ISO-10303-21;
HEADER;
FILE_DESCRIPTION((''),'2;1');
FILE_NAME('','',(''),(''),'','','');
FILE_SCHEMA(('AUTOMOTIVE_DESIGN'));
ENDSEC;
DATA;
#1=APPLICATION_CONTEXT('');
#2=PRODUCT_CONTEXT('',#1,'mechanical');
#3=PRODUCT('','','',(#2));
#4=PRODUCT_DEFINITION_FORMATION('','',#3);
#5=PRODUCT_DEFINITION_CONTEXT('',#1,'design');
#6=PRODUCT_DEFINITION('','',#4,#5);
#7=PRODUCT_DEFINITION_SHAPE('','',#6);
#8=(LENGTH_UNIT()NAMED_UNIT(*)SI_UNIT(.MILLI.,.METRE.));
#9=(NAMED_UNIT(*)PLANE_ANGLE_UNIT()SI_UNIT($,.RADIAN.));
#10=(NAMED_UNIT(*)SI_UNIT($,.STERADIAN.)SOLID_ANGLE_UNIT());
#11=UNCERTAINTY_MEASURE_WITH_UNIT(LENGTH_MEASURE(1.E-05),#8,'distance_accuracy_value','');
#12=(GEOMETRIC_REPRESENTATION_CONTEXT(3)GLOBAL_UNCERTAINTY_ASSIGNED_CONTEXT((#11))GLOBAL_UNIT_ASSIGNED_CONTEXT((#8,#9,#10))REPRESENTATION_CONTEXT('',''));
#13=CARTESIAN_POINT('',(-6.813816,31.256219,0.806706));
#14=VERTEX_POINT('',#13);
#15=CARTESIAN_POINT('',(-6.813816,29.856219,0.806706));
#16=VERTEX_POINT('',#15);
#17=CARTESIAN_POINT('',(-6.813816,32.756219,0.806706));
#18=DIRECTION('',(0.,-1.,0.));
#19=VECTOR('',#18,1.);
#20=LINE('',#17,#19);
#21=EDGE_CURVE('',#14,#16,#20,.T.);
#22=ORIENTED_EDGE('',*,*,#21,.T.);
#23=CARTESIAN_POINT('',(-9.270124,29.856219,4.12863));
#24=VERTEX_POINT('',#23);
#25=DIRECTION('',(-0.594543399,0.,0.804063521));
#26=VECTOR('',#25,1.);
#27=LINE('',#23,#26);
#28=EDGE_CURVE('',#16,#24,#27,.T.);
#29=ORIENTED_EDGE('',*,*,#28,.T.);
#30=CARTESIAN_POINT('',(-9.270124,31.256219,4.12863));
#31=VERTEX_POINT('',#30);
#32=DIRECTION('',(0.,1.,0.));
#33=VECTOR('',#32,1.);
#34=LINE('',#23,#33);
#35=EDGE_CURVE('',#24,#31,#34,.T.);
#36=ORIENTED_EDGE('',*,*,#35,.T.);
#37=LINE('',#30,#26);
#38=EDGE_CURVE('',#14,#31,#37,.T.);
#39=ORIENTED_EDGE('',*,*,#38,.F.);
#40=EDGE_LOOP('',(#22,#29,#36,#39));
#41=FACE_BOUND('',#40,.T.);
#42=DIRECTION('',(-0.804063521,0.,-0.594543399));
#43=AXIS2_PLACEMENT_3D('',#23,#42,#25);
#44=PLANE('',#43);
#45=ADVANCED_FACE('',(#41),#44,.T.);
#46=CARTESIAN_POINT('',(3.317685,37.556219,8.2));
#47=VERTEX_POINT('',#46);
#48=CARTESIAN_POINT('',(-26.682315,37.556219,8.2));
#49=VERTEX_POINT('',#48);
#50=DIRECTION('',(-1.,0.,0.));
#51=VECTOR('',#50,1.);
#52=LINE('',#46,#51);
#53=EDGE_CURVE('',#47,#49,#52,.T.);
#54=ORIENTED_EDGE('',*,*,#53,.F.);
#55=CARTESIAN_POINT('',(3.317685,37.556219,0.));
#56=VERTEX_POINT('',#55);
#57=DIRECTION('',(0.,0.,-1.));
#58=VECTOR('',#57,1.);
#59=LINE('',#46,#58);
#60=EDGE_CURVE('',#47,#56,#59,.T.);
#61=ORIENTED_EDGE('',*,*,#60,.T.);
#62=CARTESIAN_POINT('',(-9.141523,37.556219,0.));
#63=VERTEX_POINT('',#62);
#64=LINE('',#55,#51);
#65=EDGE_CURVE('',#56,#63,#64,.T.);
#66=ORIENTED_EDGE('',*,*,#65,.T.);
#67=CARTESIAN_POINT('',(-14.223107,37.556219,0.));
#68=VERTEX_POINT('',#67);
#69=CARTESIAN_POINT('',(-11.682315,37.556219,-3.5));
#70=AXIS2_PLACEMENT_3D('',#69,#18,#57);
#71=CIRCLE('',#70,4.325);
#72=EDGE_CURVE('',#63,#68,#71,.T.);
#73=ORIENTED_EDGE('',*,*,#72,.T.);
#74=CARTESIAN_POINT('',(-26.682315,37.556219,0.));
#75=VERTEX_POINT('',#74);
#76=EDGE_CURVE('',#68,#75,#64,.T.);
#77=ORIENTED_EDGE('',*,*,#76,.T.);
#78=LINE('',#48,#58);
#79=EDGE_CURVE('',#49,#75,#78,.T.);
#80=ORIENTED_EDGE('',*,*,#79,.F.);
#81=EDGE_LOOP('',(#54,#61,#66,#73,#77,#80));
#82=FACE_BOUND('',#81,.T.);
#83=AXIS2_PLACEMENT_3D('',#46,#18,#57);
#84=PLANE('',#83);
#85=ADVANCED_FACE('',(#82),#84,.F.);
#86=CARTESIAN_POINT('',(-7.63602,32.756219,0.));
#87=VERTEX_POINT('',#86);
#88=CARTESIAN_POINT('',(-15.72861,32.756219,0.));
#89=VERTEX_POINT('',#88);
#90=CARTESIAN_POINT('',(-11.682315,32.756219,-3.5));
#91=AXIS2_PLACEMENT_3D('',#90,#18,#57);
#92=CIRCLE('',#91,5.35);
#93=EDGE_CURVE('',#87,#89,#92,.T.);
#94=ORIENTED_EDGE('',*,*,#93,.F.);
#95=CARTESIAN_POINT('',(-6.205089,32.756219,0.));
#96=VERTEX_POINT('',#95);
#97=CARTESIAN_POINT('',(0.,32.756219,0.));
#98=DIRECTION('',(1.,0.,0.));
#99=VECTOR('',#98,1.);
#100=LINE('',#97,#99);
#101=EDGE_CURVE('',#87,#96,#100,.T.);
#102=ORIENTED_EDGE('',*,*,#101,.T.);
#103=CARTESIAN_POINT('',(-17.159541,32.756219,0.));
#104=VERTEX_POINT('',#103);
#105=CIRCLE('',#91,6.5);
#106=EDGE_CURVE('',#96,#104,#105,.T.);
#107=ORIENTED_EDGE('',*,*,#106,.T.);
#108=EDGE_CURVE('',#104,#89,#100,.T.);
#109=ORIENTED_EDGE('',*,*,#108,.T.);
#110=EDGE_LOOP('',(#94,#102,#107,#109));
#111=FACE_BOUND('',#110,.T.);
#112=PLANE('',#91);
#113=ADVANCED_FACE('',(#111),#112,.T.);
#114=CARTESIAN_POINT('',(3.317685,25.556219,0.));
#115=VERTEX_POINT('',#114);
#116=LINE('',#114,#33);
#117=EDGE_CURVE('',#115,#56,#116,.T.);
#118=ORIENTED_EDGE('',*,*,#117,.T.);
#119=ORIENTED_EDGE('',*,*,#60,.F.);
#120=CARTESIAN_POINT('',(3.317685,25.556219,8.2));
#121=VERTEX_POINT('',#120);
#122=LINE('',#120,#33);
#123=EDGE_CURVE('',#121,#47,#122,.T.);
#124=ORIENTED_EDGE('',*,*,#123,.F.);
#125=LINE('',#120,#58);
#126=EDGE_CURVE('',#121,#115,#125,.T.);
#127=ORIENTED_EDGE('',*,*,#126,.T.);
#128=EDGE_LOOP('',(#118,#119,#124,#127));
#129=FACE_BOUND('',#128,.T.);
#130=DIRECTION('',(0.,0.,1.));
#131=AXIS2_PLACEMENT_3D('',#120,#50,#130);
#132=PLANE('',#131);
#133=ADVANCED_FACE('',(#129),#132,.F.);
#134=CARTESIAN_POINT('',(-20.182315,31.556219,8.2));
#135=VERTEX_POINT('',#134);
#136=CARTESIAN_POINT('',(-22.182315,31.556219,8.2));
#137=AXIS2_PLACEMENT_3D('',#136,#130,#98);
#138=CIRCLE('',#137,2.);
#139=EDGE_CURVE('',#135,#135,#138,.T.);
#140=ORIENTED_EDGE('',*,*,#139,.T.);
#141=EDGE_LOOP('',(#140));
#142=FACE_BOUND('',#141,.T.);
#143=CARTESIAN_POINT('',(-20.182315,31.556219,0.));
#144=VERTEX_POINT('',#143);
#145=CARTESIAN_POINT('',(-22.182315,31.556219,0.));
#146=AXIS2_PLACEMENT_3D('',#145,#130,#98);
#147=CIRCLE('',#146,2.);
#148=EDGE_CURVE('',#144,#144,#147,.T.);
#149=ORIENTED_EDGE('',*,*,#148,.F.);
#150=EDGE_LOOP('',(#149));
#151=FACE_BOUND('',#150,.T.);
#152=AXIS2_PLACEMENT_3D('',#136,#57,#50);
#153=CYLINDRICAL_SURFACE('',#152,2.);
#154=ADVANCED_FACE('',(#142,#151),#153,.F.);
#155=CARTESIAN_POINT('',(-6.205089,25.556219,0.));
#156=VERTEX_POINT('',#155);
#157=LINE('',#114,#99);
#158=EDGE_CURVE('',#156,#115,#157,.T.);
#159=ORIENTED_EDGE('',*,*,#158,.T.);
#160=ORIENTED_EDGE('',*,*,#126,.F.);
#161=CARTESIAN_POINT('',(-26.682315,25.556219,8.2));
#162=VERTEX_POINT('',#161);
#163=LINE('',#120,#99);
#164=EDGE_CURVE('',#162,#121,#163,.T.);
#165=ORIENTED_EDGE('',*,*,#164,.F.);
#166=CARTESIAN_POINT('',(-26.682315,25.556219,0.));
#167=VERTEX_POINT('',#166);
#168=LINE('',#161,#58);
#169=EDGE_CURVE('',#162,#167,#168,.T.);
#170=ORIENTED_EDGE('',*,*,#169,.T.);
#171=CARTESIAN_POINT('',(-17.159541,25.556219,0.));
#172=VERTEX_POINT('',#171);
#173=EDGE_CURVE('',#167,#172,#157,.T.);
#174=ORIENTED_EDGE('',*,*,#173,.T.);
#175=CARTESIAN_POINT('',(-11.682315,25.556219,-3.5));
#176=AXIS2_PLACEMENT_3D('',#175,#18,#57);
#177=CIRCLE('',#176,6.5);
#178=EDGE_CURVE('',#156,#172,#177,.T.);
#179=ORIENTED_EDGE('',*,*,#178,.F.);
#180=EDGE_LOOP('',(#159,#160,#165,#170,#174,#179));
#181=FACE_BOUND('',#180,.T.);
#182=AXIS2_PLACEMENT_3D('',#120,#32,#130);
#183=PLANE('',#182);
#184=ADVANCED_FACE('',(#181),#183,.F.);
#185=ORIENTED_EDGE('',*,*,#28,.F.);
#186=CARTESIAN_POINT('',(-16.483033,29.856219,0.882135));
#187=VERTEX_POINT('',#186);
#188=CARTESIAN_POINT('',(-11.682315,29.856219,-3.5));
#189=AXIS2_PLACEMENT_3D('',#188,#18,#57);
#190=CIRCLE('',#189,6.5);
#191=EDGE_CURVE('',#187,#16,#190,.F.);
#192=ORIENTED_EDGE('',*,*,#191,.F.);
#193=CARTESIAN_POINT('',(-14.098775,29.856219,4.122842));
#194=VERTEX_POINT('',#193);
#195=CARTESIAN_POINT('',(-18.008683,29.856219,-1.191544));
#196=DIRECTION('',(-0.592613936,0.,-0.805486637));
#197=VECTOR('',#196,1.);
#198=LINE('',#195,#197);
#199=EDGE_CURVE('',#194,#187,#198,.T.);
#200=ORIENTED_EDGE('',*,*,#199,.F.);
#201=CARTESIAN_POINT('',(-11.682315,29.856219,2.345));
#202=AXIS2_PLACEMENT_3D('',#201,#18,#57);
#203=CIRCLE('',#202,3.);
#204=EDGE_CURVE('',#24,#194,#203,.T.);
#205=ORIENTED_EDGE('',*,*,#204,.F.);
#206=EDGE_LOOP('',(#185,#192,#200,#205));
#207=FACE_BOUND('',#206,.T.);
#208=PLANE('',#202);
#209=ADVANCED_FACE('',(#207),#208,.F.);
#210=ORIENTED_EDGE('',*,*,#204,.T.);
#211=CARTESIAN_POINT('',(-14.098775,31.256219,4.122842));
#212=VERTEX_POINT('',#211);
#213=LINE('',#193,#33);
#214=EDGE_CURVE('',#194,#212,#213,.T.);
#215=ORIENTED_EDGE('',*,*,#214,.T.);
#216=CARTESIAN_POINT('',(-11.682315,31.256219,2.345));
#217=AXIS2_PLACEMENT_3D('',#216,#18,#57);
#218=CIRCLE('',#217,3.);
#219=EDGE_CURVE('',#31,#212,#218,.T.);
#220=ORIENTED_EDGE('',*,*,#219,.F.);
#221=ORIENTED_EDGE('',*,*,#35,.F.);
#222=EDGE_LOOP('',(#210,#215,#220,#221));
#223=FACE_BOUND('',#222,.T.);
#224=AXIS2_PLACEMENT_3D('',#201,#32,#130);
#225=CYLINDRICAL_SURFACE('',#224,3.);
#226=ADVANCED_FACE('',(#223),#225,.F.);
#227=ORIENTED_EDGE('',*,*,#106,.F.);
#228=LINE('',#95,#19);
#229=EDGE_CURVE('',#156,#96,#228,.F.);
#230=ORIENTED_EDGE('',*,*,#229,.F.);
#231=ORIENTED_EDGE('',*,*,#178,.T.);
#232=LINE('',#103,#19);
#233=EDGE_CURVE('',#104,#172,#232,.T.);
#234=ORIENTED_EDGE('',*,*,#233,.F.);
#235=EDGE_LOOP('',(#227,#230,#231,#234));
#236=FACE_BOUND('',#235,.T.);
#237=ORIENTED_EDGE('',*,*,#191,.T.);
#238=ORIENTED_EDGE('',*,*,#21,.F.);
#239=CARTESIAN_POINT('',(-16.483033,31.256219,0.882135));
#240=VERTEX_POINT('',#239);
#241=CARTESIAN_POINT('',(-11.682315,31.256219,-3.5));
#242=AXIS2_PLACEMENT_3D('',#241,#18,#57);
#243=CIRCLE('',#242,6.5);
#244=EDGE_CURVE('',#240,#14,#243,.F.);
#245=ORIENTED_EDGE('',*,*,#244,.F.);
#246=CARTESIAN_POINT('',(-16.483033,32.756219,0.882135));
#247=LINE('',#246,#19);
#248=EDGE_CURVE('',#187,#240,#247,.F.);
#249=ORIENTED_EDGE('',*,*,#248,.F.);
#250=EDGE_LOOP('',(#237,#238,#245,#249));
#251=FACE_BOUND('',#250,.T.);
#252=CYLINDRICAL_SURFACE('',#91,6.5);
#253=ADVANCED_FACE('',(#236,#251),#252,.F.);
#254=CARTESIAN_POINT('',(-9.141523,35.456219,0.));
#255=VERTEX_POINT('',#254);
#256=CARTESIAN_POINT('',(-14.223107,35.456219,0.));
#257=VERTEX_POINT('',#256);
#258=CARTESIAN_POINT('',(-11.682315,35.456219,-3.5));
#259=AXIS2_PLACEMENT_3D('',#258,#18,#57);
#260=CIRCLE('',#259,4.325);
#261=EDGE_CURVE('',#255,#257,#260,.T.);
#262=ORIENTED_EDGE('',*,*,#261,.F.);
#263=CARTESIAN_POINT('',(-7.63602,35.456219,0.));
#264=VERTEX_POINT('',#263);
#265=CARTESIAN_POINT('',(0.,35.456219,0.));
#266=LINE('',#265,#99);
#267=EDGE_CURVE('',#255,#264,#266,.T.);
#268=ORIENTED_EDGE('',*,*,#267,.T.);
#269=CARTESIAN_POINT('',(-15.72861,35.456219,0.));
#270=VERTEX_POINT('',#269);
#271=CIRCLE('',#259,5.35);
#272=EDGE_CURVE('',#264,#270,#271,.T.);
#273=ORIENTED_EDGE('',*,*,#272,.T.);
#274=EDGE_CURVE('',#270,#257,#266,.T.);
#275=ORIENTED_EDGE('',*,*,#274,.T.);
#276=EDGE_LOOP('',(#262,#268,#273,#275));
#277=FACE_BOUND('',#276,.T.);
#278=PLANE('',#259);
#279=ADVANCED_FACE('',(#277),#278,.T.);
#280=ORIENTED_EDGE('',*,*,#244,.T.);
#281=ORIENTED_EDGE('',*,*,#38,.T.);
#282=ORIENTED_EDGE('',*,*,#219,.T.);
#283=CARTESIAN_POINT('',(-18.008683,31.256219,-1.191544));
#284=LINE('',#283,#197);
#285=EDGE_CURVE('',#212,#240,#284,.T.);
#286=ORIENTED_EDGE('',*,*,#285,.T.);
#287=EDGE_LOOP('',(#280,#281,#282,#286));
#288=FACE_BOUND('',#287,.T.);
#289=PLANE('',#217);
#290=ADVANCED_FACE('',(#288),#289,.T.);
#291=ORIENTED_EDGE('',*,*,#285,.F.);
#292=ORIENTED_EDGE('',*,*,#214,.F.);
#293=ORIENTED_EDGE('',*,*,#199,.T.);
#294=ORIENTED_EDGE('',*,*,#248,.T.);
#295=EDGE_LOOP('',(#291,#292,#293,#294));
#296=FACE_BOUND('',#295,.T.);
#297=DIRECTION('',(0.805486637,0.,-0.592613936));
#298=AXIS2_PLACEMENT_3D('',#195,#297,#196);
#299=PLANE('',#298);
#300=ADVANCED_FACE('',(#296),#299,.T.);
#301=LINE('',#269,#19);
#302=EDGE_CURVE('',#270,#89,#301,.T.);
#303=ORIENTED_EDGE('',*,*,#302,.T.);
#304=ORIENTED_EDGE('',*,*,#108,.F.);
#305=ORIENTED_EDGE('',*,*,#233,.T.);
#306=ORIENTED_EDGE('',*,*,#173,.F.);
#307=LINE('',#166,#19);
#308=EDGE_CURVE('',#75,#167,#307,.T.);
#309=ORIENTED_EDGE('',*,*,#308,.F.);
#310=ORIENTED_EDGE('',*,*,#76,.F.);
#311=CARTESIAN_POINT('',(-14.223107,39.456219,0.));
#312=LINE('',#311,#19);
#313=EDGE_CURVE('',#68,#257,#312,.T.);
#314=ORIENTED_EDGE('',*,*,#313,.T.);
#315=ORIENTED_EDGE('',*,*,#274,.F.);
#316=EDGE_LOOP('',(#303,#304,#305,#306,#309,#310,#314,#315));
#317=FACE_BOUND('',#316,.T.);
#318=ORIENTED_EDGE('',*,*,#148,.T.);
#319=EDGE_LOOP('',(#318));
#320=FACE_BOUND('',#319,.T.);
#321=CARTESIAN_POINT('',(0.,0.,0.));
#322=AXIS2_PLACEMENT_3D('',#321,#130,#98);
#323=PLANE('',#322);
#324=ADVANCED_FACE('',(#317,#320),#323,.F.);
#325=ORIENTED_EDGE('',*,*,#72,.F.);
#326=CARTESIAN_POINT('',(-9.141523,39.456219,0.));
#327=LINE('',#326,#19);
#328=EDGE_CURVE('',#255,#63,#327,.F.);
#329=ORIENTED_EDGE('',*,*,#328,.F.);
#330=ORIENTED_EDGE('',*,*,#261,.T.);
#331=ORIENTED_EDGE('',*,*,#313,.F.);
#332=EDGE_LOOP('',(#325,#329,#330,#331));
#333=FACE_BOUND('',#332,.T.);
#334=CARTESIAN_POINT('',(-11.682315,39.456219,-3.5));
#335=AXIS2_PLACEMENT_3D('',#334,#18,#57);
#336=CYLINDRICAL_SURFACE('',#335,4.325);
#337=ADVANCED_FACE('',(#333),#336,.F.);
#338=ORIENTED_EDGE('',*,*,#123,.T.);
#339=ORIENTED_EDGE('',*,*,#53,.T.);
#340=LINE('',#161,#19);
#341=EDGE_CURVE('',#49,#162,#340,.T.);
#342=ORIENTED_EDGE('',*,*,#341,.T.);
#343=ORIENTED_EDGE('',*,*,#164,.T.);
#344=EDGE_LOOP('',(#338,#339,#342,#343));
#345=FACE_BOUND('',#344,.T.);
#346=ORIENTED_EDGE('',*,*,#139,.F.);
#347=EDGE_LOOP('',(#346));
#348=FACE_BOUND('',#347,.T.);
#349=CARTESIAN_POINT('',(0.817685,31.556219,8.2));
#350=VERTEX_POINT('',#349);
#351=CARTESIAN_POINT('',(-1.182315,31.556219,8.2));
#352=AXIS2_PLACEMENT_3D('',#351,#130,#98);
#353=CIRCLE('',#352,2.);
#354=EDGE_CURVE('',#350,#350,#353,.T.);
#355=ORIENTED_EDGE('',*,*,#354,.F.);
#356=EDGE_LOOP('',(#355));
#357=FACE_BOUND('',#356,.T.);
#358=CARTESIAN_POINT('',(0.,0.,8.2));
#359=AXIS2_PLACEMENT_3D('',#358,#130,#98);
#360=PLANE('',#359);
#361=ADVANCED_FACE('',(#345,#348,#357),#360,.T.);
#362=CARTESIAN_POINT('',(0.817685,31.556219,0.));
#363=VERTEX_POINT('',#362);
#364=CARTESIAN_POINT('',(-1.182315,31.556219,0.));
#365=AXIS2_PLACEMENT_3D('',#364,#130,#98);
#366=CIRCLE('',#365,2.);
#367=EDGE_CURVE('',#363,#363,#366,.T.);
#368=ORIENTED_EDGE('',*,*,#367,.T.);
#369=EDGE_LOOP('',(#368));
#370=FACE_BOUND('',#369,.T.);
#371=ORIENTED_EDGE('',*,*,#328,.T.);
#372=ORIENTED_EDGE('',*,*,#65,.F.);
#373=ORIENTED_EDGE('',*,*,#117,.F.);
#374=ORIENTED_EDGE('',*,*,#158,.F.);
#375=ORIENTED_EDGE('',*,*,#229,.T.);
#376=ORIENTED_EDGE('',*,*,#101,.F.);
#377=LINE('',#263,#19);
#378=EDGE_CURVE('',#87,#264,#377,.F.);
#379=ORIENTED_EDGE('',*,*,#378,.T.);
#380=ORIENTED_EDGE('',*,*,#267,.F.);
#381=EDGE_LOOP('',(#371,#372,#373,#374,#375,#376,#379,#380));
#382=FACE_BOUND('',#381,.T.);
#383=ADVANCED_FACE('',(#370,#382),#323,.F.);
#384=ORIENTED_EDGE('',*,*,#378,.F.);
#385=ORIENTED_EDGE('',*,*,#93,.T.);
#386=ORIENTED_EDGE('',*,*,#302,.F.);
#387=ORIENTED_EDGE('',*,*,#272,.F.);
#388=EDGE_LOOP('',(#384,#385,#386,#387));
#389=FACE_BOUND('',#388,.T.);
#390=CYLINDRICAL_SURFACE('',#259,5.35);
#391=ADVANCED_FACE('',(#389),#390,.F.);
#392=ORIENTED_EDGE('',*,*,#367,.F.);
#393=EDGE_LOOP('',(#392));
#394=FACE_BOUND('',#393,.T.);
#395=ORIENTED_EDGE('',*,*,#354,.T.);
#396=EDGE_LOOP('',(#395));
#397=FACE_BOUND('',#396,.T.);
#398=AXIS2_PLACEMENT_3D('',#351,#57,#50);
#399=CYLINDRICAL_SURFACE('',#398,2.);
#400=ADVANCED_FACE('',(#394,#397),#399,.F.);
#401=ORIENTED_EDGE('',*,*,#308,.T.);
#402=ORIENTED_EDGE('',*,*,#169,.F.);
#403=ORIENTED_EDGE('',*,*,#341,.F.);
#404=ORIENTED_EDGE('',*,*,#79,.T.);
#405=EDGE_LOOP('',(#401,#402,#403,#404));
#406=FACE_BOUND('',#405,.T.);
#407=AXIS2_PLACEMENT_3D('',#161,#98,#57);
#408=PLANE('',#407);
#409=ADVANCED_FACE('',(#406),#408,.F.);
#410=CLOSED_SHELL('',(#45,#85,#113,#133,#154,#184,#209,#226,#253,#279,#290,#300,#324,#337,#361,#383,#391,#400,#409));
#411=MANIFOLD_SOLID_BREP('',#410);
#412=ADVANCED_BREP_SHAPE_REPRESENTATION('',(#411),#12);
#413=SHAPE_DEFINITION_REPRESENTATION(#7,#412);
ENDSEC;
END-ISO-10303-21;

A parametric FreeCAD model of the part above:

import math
import FreeCAD as App
import Part
import Sketcher
Q = App.Units.Quantity


def add_polygon(sketch, points):
    """Adds a closed chain of lines whose ends are joined by coincident constraints."""
    first, n = sketch.GeometryCount, len(points)
    for a, b in zip(points, points[1:] + points[:1]):
        sketch.addGeometry(Part.LineSegment(App.Vector(*a, 0), App.Vector(*b, 0)), False)
    for i in range(n):
        sketch.addConstraint(Sketcher.Constraint("Coincident", first + i, 2, first + (i + 1) % n, 1))

doc = App.newDocument("Part")
body = doc.addObject("PartDesign::Body", "Body")

# Sketch on XY plane
sketch1 = doc.addObject("Sketcher::SketchObject", "Sketch")
body.addObject(sketch1)
sketch1.AttachmentSupport = (doc.XY_Plane, [""])
sketch1.MapMode = "FlatFace"
add_polygon(sketch1, [(-26.7, 37.6), (-26.7, 25.6), (3.3, 25.6), (3.3, 37.6)])  # lines 0-3
sketch1.addGeometry(Part.Circle(App.Vector(-22.2, 31.6, 0), App.Vector(0, 0, 1), 2), False)  # 4
sketch1.addGeometry(Part.Circle(App.Vector(-1.2, 31.6, 0), App.Vector(0, 0, 1), 2), False)  # 5
sketch1.addConstraint(Sketcher.Constraint("Vertical", 0))
sketch1.addConstraint(Sketcher.Constraint("Horizontal", 1))
sketch1.addConstraint(Sketcher.Constraint("Vertical", 2))
sketch1.addConstraint(Sketcher.Constraint("Horizontal", 3))
sketch1.addConstraint(Sketcher.Constraint("Equal", 4, 5))
sketch1.addConstraint(Sketcher.Constraint("Horizontal", 4, 3, 5, 3))
sketch1.addConstraint(Sketcher.Constraint("Diameter", 4, Q("4 mm")))
sketch1.addConstraint(Sketcher.Constraint("DistanceX", 1, 1, 1, 2, Q("30 mm")))
sketch1.addConstraint(Sketcher.Constraint("DistanceY", 0, 2, 0, 1, Q("12 mm")))
sketch1.addConstraint(Sketcher.Constraint("DistanceX", 4, 3, 5, 3, Q("21 mm")))
sketch1.addConstraint(Sketcher.Constraint("DistanceY", 0, 2, 4, 3, Q("6 mm")))
sketch1.addConstraint(Sketcher.Constraint("DistanceX", 0, 2, 4, 3, Q("4.5 mm")))
sketch1.addConstraint(Sketcher.Constraint("DistanceY", -1, 1, 4, 3, Q("31.556219 mm")))
sketch1.addConstraint(Sketcher.Constraint("DistanceX", 4, 3, -1, 1, Q("22.182315 mm")))
pad1 = doc.addObject("PartDesign::Pad", "Pad")
body.addObject(pad1)
pad1.Profile = sketch1
pad1.Length = 8.2

# Sketch on XZ plane
sketch2 = doc.addObject("Sketcher::SketchObject", "Sketch001")
body.addObject(sketch2)
sketch2.AttachmentSupport = (doc.XZ_Plane, [""])
sketch2.MapMode = "FlatFace"
sketch2.AttachmentOffset = App.Placement(App.Vector(0, 0, -25.556219), App.Rotation())
sketch2.addGeometry(Part.Circle(App.Vector(-12, -4, 0), App.Vector(0, 0, 1), 6), False)
sketch2.addConstraint(Sketcher.Constraint("Diameter", 0, Q("13 mm")))
sketch2.addConstraint(Sketcher.Constraint("DistanceY", 0, 3, -1, 1, Q("3.5 mm")))
sketch2.addConstraint(Sketcher.Constraint("DistanceX", 0, 3, -1, 1, Q("11.682315 mm")))
pocket1 = doc.addObject("PartDesign::Pocket", "Pocket")
body.addObject(pocket1)
pocket1.Profile = sketch2
pocket1.Length = 7.2

# Sketch on XZ plane
sketch3 = doc.addObject("Sketcher::SketchObject", "Sketch002")
body.addObject(sketch3)
sketch3.AttachmentSupport = (doc.XZ_Plane, [""])
sketch3.MapMode = "FlatFace"
sketch3.AttachmentOffset = App.Placement(App.Vector(0, 0, -25.556219), App.Rotation())
sketch3.addGeometry(Part.Circle(App.Vector(-12, -4, 0), App.Vector(0, 0, 1), 5), False)
sketch3.addConstraint(Sketcher.Constraint("Diameter", 0, Q("10.7 mm")))
sketch3.addConstraint(Sketcher.Constraint("DistanceY", 0, 3, -1, 1, Q("3.5 mm")))
sketch3.addConstraint(Sketcher.Constraint("DistanceX", 0, 3, -1, 1, Q("11.682315 mm")))
pocket2 = doc.addObject("PartDesign::Pocket", "Pocket001")
body.addObject(pocket2)
pocket2.Profile = sketch3
pocket2.Length = 9.9

# Sketch on XZ plane
sketch4 = doc.addObject("Sketcher::SketchObject", "Sketch003")
body.addObject(sketch4)
sketch4.AttachmentSupport = (doc.XZ_Plane, [""])
sketch4.MapMode = "FlatFace"
sketch4.AttachmentOffset = App.Placement(App.Vector(0, 0, -25.556219), App.Rotation())
sketch4.addGeometry(Part.Circle(App.Vector(-11.7, -3.5, 0), App.Vector(0, 0, 1), 4.3), False)
sketch4.addConstraint(Sketcher.Constraint("Diameter", 0, Q("8.65 mm")))
sketch4.addConstraint(Sketcher.Constraint("DistanceY", 0, 3, -1, 1, Q("3.5 mm")))
sketch4.addConstraint(Sketcher.Constraint("DistanceX", 0, 3, -1, 1, Q("11.682315 mm")))
pocket3 = doc.addObject("PartDesign::Pocket", "Pocket002")
body.addObject(pocket3)
pocket3.Profile = sketch4
pocket3.Length = 13.9

# Sketch on XZ plane
sketch5 = doc.addObject("Sketcher::SketchObject", "Sketch004")
body.addObject(sketch5)
sketch5.AttachmentSupport = (doc.XZ_Plane, [""])
sketch5.MapMode = "FlatFace"
sketch5.AttachmentOffset = App.Placement(App.Vector(0, 0, -31.256219), App.Rotation())
sketch5.addGeometry(Part.LineSegment(App.Vector(-5.3, -1.2, 0), App.Vector(-9.3, 4.1, 0)), False)
sketch5.addGeometry(Part.ArcOfCircle(Part.Circle(App.Vector(-11.7, 2.3, 0), App.Vector(0, 0, 1), 3), math.radians(36), math.radians(144)), False)
sketch5.addGeometry(Part.LineSegment(App.Vector(-14.1, 4.1, 0), App.Vector(-18, -1.2, 0)), False)
sketch5.addGeometry(Part.LineSegment(App.Vector(-18, -1.2, 0), App.Vector(-5.3, -1.2, 0)), False)
sketch5.addConstraint(Sketcher.Constraint("Tangent", 0, 2, 1, 1))
sketch5.addConstraint(Sketcher.Constraint("Tangent", 1, 2, 2, 1))
sketch5.addConstraint(Sketcher.Constraint("Coincident", 2, 2, 3, 1))
sketch5.addConstraint(Sketcher.Constraint("Coincident", 3, 2, 0, 1))
sketch5.addConstraint(Sketcher.Constraint("Horizontal", 3))
sketch5.addConstraint(Sketcher.Constraint("Radius", 1, Q("3 mm")))
sketch5.addConstraint(Sketcher.Constraint("DistanceY", -1, 1, 1, 3, Q("2.345 mm")))
sketch5.addConstraint(Sketcher.Constraint("DistanceX", 3, 1, 3, 2, Q("12.67242 mm")))
sketch5.addConstraint(Sketcher.Constraint("Distance", 0, Q("6.616609 mm")))
sketch5.addConstraint(Sketcher.Constraint("DistanceY", -1, 1, 0, 2, Q("4.12863 mm")))
sketch5.addConstraint(Sketcher.Constraint("DistanceX", 1, 3, -1, 1, Q("11.682315 mm")))
pocket4 = doc.addObject("PartDesign::Pocket", "Pocket003")
body.addObject(pocket4)
pocket4.Profile = sketch5
pocket4.Length = 1.4
pocket4.Reversed = True

doc.recompute()
